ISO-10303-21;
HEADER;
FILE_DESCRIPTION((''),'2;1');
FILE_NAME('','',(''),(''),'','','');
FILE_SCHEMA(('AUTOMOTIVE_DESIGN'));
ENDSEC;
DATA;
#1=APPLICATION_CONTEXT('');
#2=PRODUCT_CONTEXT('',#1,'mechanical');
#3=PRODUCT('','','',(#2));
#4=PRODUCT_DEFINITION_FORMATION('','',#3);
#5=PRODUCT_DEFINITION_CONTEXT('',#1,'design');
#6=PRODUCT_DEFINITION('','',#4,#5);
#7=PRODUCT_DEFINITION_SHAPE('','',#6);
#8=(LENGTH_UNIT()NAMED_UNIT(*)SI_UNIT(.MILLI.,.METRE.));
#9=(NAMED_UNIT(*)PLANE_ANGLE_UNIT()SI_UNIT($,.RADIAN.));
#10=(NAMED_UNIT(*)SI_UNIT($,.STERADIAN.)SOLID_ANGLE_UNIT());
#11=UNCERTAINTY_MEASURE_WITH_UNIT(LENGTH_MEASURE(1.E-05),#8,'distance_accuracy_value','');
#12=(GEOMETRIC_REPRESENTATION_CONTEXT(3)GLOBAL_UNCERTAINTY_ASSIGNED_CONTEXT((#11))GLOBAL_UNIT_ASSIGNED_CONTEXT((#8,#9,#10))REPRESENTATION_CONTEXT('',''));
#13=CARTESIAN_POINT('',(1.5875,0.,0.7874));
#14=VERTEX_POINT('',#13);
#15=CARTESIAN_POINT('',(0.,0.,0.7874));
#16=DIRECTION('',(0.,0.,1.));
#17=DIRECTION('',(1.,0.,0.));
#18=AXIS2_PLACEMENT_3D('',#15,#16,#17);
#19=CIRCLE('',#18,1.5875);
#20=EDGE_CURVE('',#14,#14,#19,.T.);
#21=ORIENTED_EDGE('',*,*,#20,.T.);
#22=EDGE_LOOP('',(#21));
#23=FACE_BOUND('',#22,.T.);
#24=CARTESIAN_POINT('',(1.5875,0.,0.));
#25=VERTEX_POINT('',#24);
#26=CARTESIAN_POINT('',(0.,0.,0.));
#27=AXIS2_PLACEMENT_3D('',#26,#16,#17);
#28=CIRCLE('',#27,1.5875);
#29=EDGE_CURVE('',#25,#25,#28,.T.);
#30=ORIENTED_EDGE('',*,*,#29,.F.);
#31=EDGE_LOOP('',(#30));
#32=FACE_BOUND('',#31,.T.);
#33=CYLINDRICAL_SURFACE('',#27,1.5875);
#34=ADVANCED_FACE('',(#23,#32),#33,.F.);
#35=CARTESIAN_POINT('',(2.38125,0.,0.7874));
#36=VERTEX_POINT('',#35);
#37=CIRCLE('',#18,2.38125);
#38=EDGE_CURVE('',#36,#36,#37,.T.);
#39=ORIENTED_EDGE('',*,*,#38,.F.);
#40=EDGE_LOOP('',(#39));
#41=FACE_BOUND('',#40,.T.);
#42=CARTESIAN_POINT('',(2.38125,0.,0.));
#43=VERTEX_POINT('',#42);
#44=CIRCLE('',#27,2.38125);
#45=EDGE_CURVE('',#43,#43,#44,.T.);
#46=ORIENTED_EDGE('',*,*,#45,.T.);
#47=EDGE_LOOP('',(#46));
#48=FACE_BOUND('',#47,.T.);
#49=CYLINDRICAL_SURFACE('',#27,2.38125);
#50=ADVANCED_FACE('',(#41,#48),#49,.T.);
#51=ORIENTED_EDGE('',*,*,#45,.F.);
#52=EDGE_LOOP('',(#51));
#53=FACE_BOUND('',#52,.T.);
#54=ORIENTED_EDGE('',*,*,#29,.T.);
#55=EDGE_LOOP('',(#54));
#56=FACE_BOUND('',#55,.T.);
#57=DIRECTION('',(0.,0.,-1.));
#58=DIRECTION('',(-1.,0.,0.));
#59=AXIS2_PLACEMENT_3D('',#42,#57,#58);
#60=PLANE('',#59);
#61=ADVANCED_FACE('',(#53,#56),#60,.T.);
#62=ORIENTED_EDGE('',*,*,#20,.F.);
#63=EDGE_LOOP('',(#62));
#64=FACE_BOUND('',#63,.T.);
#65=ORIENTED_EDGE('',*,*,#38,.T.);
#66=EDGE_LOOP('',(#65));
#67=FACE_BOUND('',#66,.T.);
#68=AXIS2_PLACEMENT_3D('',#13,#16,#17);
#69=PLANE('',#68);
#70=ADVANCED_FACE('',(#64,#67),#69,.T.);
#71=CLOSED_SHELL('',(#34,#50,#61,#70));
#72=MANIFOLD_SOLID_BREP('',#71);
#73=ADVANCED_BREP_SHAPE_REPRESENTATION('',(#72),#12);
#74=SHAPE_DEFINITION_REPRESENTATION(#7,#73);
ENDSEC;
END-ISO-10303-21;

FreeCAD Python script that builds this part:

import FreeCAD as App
import Part
import Sketcher

V = App.Vector
Q = App.Units.Quantity

doc = App.newDocument("Part")
body = doc.addObject("PartDesign::Body", "Body")

# Sketch on XZ plane
sketch1 = doc.addObject("Sketcher::SketchObject", "Sketch")
body.addObject(sketch1)
sketch1.AttachmentSupport = (doc.XZ_Plane, [""])
sketch1.MapMode = "FlatFace"
sketch1.addGeometry(Part.LineSegment(V(1.6, 0, 0), V(1.6, 0.8, 0)), False)
sketch1.addGeometry(Part.LineSegment(V(1.6, 0.8, 0), V(2.4, 0.8, 0)), False)
sketch1.addGeometry(Part.LineSegment(V(2.4, 0.8, 0), V(2.4, 0, 0)), False)
sketch1.addGeometry(Part.LineSegment(V(2.4, 0, 0), V(1.6, 0, 0)), False)
sketch1.addConstraint(Sketcher.Constraint("Coincident", 0, 2, 1, 1))
sketch1.addConstraint(Sketcher.Constraint("Coincident", 1, 2, 2, 1))
sketch1.addConstraint(Sketcher.Constraint("Coincident", 2, 2, 3, 1))
sketch1.addConstraint(Sketcher.Constraint("Coincident", 3, 2, 0, 1))
sketch1.addConstraint(Sketcher.Constraint("Vertical", 0))
sketch1.addConstraint(Sketcher.Constraint("Horizontal", 1))
sketch1.addConstraint(Sketcher.Constraint("Vertical", 2))
sketch1.addConstraint(Sketcher.Constraint("Horizontal", 3))
sketch1.addConstraint(Sketcher.Constraint("PointOnObject", 2, 2, -1))
sketch1.addConstraint(Sketcher.Constraint("DistanceX", 1, 1, 1, 2, Q("0.03125 in")))
sketch1.addConstraint(Sketcher.Constraint("DistanceY", 0, 1, 0, 2, Q("0.031 in")))
sketch1.addConstraint(Sketcher.Constraint("DistanceX", -1, 1, 0, 2, Q("0.0625 in")))
revolution = doc.addObject("PartDesign::Revolution", "Revolution")
body.addObject(revolution)
revolution.Profile = sketch1
revolution.ReferenceAxis = (sketch1, ["V_Axis"])
revolution.Angle = 360

doc.recompute()
